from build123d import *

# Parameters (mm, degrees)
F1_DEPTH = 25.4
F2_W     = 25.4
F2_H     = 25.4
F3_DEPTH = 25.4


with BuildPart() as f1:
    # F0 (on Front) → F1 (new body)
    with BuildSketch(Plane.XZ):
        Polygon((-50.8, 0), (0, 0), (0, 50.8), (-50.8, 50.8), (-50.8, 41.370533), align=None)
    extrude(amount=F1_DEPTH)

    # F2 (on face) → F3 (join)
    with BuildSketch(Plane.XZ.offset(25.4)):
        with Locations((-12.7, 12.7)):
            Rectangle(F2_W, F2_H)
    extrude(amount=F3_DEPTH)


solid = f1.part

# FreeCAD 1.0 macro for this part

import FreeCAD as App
import Part
import Sketcher
Q = App.Units.Quantity


def add_polygon(sketch, points):
    """Adds a closed chain of lines whose ends are joined by coincident constraints."""
    first, n = sketch.GeometryCount, len(points)
    for a, b in zip(points, points[1:] + points[:1]):
        sketch.addGeometry(Part.LineSegment(App.Vector(*a, 0), App.Vector(*b, 0)), False)
    for i in range(n):
        sketch.addConstraint(Sketcher.Constraint("Coincident", first + i, 2, first + (i + 1) % n, 1))

doc = App.newDocument("Part")
body = doc.addObject("PartDesign::Body", "Body")

# Sketch on XZ plane
sketch1 = body.newObject("Sketcher::SketchObject", "Sketch")
sketch1.AttachmentSupport = (doc.getObject("XZ_Plane"), [""])
sketch1.MapMode = "FlatFace"
add_polygon(sketch1, [(-51, 0), (0, 0), (0, 51), (-51, 51)])  # lines 0-3
sketch1.addConstraint(Sketcher.Constraint("Horizontal", 0))
sketch1.addConstraint(Sketcher.Constraint("Vertical", 1))
sketch1.addConstraint(Sketcher.Constraint("Horizontal", 2))
sketch1.addConstraint(Sketcher.Constraint("Vertical", 3))
sketch1.addConstraint(Sketcher.Constraint("Coincident", 0, 2, -1, 1))
sketch1.addConstraint(Sketcher.Constraint("Equal", 2, 1))
sketch1.addConstraint(Sketcher.Constraint("DistanceX", 0, 1, 0, 2, Q("2 in")))
pad1 = body.newObject("PartDesign::Pad", "Pad")
pad1.Profile = sketch1
pad1.Length = Q("1 in")

# Sketch on XZ plane
sketch2 = body.newObject("Sketcher::SketchObject", "Sketch001")
sketch2.AttachmentSupport = (doc.getObject("XZ_Plane"), [""])
sketch2.MapMode = "FlatFace"
sketch2.AttachmentOffset = App.Placement(App.Vector(0, 0, 1 * 25.4), App.Rotation())
add_polygon(sketch2, [(-25, 25), (-25, 0), (0, 0), (0, 25)])  # lines 0-3
sketch2.addConstraint(Sketcher.Constraint("Vertical", 0))
sketch2.addConstraint(Sketcher.Constraint("Horizontal", 1))
sketch2.addConstraint(Sketcher.Constraint("Vertical", 2))
sketch2.addConstraint(Sketcher.Constraint("Horizontal", 3))
sketch2.addConstraint(Sketcher.Constraint("Coincident", 1, 2, -1, 1))
sketch2.addConstraint(Sketcher.Constraint("Equal", 3, 0))
sketch2.addConstraint(Sketcher.Constraint("DistanceX", 1, 1, 1, 2, Q("1 in")))
pad2 = body.newObject("PartDesign::Pad", "Pad001")
pad2.Profile = sketch2
pad2.Length = Q("1 in")

doc.recompute()
